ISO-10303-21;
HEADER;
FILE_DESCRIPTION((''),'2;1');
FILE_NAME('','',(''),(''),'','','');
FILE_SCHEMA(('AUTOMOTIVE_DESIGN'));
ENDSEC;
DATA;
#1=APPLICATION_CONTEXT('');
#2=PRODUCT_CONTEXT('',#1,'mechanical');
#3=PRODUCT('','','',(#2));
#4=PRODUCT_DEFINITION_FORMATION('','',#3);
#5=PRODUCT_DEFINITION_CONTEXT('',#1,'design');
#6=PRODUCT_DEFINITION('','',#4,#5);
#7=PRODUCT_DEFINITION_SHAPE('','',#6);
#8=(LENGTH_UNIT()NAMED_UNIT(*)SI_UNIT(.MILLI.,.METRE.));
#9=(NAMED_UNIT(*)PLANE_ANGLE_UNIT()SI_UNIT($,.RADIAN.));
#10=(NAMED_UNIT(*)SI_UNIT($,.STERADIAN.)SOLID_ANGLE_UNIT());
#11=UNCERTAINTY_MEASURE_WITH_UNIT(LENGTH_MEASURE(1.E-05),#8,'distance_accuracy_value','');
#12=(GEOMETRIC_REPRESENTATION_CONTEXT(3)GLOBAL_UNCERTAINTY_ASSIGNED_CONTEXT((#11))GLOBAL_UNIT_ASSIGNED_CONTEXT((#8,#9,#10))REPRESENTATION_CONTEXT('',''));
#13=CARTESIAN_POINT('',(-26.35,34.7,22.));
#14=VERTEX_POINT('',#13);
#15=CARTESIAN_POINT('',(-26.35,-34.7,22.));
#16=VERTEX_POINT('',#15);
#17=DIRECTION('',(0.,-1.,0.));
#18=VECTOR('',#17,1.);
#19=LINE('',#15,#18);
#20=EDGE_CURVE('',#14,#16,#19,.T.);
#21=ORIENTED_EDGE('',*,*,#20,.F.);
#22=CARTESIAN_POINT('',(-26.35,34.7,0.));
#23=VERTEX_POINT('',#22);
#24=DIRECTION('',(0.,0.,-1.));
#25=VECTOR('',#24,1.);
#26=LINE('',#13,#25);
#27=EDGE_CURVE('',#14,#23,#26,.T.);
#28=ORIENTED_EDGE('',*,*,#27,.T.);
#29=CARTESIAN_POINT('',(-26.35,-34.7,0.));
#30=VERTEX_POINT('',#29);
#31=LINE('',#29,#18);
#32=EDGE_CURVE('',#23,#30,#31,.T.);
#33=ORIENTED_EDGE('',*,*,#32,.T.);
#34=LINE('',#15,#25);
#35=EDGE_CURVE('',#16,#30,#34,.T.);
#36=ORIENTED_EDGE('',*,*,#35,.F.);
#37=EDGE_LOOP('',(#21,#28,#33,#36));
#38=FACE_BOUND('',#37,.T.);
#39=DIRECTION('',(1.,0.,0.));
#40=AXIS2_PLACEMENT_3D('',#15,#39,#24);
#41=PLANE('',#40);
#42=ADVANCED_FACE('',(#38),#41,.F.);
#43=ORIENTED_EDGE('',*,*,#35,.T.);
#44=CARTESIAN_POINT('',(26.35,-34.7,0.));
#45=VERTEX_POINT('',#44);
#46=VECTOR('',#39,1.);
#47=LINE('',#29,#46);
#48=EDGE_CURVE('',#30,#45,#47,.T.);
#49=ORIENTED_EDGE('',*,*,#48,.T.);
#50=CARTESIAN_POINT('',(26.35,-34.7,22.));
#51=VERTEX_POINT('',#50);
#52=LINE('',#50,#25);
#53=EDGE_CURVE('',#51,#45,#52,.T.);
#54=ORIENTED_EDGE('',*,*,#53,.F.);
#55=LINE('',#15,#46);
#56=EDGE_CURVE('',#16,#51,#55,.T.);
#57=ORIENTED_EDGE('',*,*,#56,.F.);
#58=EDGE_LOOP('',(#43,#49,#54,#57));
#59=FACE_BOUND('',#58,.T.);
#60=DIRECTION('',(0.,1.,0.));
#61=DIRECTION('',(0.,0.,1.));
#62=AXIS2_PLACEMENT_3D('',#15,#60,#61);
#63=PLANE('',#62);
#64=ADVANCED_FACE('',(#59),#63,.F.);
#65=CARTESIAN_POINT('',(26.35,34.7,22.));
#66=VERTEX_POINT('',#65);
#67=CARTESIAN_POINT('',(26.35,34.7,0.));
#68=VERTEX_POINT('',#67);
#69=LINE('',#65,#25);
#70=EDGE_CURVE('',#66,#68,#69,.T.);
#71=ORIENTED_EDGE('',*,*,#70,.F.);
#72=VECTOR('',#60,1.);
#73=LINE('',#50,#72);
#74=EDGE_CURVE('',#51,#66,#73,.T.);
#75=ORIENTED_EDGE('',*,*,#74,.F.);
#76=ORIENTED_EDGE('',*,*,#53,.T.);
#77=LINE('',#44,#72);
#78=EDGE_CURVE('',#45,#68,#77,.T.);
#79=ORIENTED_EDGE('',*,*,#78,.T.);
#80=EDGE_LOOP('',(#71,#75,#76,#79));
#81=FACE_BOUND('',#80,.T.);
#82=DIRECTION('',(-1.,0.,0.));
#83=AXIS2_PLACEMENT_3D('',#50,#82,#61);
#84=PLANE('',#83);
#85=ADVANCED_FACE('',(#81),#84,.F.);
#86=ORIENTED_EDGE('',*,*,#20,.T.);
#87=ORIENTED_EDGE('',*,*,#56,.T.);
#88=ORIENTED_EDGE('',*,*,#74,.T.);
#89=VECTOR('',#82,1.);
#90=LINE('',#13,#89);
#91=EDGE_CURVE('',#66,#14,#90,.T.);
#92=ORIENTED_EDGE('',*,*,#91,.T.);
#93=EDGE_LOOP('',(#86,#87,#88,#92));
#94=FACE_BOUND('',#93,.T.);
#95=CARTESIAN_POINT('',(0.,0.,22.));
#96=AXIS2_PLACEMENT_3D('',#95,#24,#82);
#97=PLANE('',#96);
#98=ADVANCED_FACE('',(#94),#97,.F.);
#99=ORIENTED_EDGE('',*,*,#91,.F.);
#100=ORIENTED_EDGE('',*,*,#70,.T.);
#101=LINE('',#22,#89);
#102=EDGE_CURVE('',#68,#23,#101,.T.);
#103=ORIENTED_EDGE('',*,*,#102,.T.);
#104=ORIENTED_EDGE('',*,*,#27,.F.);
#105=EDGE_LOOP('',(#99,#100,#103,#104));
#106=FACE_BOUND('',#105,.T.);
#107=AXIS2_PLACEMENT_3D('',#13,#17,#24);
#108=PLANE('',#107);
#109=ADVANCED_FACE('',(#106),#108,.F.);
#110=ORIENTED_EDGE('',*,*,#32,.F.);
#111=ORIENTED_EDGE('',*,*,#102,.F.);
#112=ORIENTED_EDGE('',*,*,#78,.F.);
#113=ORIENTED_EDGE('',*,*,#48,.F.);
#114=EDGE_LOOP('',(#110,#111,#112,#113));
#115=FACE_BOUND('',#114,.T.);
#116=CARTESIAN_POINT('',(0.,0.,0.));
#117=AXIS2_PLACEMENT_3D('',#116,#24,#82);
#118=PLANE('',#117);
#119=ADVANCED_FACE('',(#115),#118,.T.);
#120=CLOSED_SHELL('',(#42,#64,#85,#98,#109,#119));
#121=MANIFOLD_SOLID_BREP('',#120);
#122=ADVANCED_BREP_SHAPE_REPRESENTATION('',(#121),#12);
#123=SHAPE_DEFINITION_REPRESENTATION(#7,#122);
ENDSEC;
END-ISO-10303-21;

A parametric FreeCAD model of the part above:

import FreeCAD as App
import Part
import Sketcher


def add_polygon(sketch, points):
    """Adds a closed chain of lines whose ends are joined by coincident constraints."""
    first, n = sketch.GeometryCount, len(points)
    for a, b in zip(points, points[1:] + points[:1]):
        sketch.addGeometry(Part.LineSegment(App.Vector(*a, 0), App.Vector(*b, 0)), False)
    for i in range(n):
        sketch.addConstraint(Sketcher.Constraint("Coincident", first + i, 2, first + (i + 1) % n, 1))

doc = App.newDocument("Part")
body = doc.addObject("PartDesign::Body", "Body")

sketch1 = body.newObject("Sketcher::SketchObject", "Sketch")
sketch1.AttachmentSupport = (doc.getObject("XY_Plane"), [""])
sketch1.MapMode = "FlatFace"
add_polygon(sketch1, [(-26.35, 34.7), (-26.35, -34.7), (26.35, -34.7), (26.35, 34.7)])
sketch1.addConstraint(Sketcher.Constraint("Vertical", 0))
sketch1.addConstraint(Sketcher.Constraint("Horizontal", 1))
sketch1.addConstraint(Sketcher.Constraint("Vertical", 2))
sketch1.addConstraint(Sketcher.Constraint("Horizontal", 3))
sketch1.addConstraint(Sketcher.Constraint("Symmetric", 0, 2, 2, 2, -1, 1))
sketch1.addConstraint(Sketcher.Constraint("DistanceX", 1, 1, 1, 2, 52.7))
sketch1.addConstraint(Sketcher.Constraint("DistanceY", 0, 2, 0, 1, 69.4))
pad1 = body.newObject("PartDesign::Pad", "Pad")
pad1.Profile = sketch1
pad1.Length = 22

doc.recompute()
